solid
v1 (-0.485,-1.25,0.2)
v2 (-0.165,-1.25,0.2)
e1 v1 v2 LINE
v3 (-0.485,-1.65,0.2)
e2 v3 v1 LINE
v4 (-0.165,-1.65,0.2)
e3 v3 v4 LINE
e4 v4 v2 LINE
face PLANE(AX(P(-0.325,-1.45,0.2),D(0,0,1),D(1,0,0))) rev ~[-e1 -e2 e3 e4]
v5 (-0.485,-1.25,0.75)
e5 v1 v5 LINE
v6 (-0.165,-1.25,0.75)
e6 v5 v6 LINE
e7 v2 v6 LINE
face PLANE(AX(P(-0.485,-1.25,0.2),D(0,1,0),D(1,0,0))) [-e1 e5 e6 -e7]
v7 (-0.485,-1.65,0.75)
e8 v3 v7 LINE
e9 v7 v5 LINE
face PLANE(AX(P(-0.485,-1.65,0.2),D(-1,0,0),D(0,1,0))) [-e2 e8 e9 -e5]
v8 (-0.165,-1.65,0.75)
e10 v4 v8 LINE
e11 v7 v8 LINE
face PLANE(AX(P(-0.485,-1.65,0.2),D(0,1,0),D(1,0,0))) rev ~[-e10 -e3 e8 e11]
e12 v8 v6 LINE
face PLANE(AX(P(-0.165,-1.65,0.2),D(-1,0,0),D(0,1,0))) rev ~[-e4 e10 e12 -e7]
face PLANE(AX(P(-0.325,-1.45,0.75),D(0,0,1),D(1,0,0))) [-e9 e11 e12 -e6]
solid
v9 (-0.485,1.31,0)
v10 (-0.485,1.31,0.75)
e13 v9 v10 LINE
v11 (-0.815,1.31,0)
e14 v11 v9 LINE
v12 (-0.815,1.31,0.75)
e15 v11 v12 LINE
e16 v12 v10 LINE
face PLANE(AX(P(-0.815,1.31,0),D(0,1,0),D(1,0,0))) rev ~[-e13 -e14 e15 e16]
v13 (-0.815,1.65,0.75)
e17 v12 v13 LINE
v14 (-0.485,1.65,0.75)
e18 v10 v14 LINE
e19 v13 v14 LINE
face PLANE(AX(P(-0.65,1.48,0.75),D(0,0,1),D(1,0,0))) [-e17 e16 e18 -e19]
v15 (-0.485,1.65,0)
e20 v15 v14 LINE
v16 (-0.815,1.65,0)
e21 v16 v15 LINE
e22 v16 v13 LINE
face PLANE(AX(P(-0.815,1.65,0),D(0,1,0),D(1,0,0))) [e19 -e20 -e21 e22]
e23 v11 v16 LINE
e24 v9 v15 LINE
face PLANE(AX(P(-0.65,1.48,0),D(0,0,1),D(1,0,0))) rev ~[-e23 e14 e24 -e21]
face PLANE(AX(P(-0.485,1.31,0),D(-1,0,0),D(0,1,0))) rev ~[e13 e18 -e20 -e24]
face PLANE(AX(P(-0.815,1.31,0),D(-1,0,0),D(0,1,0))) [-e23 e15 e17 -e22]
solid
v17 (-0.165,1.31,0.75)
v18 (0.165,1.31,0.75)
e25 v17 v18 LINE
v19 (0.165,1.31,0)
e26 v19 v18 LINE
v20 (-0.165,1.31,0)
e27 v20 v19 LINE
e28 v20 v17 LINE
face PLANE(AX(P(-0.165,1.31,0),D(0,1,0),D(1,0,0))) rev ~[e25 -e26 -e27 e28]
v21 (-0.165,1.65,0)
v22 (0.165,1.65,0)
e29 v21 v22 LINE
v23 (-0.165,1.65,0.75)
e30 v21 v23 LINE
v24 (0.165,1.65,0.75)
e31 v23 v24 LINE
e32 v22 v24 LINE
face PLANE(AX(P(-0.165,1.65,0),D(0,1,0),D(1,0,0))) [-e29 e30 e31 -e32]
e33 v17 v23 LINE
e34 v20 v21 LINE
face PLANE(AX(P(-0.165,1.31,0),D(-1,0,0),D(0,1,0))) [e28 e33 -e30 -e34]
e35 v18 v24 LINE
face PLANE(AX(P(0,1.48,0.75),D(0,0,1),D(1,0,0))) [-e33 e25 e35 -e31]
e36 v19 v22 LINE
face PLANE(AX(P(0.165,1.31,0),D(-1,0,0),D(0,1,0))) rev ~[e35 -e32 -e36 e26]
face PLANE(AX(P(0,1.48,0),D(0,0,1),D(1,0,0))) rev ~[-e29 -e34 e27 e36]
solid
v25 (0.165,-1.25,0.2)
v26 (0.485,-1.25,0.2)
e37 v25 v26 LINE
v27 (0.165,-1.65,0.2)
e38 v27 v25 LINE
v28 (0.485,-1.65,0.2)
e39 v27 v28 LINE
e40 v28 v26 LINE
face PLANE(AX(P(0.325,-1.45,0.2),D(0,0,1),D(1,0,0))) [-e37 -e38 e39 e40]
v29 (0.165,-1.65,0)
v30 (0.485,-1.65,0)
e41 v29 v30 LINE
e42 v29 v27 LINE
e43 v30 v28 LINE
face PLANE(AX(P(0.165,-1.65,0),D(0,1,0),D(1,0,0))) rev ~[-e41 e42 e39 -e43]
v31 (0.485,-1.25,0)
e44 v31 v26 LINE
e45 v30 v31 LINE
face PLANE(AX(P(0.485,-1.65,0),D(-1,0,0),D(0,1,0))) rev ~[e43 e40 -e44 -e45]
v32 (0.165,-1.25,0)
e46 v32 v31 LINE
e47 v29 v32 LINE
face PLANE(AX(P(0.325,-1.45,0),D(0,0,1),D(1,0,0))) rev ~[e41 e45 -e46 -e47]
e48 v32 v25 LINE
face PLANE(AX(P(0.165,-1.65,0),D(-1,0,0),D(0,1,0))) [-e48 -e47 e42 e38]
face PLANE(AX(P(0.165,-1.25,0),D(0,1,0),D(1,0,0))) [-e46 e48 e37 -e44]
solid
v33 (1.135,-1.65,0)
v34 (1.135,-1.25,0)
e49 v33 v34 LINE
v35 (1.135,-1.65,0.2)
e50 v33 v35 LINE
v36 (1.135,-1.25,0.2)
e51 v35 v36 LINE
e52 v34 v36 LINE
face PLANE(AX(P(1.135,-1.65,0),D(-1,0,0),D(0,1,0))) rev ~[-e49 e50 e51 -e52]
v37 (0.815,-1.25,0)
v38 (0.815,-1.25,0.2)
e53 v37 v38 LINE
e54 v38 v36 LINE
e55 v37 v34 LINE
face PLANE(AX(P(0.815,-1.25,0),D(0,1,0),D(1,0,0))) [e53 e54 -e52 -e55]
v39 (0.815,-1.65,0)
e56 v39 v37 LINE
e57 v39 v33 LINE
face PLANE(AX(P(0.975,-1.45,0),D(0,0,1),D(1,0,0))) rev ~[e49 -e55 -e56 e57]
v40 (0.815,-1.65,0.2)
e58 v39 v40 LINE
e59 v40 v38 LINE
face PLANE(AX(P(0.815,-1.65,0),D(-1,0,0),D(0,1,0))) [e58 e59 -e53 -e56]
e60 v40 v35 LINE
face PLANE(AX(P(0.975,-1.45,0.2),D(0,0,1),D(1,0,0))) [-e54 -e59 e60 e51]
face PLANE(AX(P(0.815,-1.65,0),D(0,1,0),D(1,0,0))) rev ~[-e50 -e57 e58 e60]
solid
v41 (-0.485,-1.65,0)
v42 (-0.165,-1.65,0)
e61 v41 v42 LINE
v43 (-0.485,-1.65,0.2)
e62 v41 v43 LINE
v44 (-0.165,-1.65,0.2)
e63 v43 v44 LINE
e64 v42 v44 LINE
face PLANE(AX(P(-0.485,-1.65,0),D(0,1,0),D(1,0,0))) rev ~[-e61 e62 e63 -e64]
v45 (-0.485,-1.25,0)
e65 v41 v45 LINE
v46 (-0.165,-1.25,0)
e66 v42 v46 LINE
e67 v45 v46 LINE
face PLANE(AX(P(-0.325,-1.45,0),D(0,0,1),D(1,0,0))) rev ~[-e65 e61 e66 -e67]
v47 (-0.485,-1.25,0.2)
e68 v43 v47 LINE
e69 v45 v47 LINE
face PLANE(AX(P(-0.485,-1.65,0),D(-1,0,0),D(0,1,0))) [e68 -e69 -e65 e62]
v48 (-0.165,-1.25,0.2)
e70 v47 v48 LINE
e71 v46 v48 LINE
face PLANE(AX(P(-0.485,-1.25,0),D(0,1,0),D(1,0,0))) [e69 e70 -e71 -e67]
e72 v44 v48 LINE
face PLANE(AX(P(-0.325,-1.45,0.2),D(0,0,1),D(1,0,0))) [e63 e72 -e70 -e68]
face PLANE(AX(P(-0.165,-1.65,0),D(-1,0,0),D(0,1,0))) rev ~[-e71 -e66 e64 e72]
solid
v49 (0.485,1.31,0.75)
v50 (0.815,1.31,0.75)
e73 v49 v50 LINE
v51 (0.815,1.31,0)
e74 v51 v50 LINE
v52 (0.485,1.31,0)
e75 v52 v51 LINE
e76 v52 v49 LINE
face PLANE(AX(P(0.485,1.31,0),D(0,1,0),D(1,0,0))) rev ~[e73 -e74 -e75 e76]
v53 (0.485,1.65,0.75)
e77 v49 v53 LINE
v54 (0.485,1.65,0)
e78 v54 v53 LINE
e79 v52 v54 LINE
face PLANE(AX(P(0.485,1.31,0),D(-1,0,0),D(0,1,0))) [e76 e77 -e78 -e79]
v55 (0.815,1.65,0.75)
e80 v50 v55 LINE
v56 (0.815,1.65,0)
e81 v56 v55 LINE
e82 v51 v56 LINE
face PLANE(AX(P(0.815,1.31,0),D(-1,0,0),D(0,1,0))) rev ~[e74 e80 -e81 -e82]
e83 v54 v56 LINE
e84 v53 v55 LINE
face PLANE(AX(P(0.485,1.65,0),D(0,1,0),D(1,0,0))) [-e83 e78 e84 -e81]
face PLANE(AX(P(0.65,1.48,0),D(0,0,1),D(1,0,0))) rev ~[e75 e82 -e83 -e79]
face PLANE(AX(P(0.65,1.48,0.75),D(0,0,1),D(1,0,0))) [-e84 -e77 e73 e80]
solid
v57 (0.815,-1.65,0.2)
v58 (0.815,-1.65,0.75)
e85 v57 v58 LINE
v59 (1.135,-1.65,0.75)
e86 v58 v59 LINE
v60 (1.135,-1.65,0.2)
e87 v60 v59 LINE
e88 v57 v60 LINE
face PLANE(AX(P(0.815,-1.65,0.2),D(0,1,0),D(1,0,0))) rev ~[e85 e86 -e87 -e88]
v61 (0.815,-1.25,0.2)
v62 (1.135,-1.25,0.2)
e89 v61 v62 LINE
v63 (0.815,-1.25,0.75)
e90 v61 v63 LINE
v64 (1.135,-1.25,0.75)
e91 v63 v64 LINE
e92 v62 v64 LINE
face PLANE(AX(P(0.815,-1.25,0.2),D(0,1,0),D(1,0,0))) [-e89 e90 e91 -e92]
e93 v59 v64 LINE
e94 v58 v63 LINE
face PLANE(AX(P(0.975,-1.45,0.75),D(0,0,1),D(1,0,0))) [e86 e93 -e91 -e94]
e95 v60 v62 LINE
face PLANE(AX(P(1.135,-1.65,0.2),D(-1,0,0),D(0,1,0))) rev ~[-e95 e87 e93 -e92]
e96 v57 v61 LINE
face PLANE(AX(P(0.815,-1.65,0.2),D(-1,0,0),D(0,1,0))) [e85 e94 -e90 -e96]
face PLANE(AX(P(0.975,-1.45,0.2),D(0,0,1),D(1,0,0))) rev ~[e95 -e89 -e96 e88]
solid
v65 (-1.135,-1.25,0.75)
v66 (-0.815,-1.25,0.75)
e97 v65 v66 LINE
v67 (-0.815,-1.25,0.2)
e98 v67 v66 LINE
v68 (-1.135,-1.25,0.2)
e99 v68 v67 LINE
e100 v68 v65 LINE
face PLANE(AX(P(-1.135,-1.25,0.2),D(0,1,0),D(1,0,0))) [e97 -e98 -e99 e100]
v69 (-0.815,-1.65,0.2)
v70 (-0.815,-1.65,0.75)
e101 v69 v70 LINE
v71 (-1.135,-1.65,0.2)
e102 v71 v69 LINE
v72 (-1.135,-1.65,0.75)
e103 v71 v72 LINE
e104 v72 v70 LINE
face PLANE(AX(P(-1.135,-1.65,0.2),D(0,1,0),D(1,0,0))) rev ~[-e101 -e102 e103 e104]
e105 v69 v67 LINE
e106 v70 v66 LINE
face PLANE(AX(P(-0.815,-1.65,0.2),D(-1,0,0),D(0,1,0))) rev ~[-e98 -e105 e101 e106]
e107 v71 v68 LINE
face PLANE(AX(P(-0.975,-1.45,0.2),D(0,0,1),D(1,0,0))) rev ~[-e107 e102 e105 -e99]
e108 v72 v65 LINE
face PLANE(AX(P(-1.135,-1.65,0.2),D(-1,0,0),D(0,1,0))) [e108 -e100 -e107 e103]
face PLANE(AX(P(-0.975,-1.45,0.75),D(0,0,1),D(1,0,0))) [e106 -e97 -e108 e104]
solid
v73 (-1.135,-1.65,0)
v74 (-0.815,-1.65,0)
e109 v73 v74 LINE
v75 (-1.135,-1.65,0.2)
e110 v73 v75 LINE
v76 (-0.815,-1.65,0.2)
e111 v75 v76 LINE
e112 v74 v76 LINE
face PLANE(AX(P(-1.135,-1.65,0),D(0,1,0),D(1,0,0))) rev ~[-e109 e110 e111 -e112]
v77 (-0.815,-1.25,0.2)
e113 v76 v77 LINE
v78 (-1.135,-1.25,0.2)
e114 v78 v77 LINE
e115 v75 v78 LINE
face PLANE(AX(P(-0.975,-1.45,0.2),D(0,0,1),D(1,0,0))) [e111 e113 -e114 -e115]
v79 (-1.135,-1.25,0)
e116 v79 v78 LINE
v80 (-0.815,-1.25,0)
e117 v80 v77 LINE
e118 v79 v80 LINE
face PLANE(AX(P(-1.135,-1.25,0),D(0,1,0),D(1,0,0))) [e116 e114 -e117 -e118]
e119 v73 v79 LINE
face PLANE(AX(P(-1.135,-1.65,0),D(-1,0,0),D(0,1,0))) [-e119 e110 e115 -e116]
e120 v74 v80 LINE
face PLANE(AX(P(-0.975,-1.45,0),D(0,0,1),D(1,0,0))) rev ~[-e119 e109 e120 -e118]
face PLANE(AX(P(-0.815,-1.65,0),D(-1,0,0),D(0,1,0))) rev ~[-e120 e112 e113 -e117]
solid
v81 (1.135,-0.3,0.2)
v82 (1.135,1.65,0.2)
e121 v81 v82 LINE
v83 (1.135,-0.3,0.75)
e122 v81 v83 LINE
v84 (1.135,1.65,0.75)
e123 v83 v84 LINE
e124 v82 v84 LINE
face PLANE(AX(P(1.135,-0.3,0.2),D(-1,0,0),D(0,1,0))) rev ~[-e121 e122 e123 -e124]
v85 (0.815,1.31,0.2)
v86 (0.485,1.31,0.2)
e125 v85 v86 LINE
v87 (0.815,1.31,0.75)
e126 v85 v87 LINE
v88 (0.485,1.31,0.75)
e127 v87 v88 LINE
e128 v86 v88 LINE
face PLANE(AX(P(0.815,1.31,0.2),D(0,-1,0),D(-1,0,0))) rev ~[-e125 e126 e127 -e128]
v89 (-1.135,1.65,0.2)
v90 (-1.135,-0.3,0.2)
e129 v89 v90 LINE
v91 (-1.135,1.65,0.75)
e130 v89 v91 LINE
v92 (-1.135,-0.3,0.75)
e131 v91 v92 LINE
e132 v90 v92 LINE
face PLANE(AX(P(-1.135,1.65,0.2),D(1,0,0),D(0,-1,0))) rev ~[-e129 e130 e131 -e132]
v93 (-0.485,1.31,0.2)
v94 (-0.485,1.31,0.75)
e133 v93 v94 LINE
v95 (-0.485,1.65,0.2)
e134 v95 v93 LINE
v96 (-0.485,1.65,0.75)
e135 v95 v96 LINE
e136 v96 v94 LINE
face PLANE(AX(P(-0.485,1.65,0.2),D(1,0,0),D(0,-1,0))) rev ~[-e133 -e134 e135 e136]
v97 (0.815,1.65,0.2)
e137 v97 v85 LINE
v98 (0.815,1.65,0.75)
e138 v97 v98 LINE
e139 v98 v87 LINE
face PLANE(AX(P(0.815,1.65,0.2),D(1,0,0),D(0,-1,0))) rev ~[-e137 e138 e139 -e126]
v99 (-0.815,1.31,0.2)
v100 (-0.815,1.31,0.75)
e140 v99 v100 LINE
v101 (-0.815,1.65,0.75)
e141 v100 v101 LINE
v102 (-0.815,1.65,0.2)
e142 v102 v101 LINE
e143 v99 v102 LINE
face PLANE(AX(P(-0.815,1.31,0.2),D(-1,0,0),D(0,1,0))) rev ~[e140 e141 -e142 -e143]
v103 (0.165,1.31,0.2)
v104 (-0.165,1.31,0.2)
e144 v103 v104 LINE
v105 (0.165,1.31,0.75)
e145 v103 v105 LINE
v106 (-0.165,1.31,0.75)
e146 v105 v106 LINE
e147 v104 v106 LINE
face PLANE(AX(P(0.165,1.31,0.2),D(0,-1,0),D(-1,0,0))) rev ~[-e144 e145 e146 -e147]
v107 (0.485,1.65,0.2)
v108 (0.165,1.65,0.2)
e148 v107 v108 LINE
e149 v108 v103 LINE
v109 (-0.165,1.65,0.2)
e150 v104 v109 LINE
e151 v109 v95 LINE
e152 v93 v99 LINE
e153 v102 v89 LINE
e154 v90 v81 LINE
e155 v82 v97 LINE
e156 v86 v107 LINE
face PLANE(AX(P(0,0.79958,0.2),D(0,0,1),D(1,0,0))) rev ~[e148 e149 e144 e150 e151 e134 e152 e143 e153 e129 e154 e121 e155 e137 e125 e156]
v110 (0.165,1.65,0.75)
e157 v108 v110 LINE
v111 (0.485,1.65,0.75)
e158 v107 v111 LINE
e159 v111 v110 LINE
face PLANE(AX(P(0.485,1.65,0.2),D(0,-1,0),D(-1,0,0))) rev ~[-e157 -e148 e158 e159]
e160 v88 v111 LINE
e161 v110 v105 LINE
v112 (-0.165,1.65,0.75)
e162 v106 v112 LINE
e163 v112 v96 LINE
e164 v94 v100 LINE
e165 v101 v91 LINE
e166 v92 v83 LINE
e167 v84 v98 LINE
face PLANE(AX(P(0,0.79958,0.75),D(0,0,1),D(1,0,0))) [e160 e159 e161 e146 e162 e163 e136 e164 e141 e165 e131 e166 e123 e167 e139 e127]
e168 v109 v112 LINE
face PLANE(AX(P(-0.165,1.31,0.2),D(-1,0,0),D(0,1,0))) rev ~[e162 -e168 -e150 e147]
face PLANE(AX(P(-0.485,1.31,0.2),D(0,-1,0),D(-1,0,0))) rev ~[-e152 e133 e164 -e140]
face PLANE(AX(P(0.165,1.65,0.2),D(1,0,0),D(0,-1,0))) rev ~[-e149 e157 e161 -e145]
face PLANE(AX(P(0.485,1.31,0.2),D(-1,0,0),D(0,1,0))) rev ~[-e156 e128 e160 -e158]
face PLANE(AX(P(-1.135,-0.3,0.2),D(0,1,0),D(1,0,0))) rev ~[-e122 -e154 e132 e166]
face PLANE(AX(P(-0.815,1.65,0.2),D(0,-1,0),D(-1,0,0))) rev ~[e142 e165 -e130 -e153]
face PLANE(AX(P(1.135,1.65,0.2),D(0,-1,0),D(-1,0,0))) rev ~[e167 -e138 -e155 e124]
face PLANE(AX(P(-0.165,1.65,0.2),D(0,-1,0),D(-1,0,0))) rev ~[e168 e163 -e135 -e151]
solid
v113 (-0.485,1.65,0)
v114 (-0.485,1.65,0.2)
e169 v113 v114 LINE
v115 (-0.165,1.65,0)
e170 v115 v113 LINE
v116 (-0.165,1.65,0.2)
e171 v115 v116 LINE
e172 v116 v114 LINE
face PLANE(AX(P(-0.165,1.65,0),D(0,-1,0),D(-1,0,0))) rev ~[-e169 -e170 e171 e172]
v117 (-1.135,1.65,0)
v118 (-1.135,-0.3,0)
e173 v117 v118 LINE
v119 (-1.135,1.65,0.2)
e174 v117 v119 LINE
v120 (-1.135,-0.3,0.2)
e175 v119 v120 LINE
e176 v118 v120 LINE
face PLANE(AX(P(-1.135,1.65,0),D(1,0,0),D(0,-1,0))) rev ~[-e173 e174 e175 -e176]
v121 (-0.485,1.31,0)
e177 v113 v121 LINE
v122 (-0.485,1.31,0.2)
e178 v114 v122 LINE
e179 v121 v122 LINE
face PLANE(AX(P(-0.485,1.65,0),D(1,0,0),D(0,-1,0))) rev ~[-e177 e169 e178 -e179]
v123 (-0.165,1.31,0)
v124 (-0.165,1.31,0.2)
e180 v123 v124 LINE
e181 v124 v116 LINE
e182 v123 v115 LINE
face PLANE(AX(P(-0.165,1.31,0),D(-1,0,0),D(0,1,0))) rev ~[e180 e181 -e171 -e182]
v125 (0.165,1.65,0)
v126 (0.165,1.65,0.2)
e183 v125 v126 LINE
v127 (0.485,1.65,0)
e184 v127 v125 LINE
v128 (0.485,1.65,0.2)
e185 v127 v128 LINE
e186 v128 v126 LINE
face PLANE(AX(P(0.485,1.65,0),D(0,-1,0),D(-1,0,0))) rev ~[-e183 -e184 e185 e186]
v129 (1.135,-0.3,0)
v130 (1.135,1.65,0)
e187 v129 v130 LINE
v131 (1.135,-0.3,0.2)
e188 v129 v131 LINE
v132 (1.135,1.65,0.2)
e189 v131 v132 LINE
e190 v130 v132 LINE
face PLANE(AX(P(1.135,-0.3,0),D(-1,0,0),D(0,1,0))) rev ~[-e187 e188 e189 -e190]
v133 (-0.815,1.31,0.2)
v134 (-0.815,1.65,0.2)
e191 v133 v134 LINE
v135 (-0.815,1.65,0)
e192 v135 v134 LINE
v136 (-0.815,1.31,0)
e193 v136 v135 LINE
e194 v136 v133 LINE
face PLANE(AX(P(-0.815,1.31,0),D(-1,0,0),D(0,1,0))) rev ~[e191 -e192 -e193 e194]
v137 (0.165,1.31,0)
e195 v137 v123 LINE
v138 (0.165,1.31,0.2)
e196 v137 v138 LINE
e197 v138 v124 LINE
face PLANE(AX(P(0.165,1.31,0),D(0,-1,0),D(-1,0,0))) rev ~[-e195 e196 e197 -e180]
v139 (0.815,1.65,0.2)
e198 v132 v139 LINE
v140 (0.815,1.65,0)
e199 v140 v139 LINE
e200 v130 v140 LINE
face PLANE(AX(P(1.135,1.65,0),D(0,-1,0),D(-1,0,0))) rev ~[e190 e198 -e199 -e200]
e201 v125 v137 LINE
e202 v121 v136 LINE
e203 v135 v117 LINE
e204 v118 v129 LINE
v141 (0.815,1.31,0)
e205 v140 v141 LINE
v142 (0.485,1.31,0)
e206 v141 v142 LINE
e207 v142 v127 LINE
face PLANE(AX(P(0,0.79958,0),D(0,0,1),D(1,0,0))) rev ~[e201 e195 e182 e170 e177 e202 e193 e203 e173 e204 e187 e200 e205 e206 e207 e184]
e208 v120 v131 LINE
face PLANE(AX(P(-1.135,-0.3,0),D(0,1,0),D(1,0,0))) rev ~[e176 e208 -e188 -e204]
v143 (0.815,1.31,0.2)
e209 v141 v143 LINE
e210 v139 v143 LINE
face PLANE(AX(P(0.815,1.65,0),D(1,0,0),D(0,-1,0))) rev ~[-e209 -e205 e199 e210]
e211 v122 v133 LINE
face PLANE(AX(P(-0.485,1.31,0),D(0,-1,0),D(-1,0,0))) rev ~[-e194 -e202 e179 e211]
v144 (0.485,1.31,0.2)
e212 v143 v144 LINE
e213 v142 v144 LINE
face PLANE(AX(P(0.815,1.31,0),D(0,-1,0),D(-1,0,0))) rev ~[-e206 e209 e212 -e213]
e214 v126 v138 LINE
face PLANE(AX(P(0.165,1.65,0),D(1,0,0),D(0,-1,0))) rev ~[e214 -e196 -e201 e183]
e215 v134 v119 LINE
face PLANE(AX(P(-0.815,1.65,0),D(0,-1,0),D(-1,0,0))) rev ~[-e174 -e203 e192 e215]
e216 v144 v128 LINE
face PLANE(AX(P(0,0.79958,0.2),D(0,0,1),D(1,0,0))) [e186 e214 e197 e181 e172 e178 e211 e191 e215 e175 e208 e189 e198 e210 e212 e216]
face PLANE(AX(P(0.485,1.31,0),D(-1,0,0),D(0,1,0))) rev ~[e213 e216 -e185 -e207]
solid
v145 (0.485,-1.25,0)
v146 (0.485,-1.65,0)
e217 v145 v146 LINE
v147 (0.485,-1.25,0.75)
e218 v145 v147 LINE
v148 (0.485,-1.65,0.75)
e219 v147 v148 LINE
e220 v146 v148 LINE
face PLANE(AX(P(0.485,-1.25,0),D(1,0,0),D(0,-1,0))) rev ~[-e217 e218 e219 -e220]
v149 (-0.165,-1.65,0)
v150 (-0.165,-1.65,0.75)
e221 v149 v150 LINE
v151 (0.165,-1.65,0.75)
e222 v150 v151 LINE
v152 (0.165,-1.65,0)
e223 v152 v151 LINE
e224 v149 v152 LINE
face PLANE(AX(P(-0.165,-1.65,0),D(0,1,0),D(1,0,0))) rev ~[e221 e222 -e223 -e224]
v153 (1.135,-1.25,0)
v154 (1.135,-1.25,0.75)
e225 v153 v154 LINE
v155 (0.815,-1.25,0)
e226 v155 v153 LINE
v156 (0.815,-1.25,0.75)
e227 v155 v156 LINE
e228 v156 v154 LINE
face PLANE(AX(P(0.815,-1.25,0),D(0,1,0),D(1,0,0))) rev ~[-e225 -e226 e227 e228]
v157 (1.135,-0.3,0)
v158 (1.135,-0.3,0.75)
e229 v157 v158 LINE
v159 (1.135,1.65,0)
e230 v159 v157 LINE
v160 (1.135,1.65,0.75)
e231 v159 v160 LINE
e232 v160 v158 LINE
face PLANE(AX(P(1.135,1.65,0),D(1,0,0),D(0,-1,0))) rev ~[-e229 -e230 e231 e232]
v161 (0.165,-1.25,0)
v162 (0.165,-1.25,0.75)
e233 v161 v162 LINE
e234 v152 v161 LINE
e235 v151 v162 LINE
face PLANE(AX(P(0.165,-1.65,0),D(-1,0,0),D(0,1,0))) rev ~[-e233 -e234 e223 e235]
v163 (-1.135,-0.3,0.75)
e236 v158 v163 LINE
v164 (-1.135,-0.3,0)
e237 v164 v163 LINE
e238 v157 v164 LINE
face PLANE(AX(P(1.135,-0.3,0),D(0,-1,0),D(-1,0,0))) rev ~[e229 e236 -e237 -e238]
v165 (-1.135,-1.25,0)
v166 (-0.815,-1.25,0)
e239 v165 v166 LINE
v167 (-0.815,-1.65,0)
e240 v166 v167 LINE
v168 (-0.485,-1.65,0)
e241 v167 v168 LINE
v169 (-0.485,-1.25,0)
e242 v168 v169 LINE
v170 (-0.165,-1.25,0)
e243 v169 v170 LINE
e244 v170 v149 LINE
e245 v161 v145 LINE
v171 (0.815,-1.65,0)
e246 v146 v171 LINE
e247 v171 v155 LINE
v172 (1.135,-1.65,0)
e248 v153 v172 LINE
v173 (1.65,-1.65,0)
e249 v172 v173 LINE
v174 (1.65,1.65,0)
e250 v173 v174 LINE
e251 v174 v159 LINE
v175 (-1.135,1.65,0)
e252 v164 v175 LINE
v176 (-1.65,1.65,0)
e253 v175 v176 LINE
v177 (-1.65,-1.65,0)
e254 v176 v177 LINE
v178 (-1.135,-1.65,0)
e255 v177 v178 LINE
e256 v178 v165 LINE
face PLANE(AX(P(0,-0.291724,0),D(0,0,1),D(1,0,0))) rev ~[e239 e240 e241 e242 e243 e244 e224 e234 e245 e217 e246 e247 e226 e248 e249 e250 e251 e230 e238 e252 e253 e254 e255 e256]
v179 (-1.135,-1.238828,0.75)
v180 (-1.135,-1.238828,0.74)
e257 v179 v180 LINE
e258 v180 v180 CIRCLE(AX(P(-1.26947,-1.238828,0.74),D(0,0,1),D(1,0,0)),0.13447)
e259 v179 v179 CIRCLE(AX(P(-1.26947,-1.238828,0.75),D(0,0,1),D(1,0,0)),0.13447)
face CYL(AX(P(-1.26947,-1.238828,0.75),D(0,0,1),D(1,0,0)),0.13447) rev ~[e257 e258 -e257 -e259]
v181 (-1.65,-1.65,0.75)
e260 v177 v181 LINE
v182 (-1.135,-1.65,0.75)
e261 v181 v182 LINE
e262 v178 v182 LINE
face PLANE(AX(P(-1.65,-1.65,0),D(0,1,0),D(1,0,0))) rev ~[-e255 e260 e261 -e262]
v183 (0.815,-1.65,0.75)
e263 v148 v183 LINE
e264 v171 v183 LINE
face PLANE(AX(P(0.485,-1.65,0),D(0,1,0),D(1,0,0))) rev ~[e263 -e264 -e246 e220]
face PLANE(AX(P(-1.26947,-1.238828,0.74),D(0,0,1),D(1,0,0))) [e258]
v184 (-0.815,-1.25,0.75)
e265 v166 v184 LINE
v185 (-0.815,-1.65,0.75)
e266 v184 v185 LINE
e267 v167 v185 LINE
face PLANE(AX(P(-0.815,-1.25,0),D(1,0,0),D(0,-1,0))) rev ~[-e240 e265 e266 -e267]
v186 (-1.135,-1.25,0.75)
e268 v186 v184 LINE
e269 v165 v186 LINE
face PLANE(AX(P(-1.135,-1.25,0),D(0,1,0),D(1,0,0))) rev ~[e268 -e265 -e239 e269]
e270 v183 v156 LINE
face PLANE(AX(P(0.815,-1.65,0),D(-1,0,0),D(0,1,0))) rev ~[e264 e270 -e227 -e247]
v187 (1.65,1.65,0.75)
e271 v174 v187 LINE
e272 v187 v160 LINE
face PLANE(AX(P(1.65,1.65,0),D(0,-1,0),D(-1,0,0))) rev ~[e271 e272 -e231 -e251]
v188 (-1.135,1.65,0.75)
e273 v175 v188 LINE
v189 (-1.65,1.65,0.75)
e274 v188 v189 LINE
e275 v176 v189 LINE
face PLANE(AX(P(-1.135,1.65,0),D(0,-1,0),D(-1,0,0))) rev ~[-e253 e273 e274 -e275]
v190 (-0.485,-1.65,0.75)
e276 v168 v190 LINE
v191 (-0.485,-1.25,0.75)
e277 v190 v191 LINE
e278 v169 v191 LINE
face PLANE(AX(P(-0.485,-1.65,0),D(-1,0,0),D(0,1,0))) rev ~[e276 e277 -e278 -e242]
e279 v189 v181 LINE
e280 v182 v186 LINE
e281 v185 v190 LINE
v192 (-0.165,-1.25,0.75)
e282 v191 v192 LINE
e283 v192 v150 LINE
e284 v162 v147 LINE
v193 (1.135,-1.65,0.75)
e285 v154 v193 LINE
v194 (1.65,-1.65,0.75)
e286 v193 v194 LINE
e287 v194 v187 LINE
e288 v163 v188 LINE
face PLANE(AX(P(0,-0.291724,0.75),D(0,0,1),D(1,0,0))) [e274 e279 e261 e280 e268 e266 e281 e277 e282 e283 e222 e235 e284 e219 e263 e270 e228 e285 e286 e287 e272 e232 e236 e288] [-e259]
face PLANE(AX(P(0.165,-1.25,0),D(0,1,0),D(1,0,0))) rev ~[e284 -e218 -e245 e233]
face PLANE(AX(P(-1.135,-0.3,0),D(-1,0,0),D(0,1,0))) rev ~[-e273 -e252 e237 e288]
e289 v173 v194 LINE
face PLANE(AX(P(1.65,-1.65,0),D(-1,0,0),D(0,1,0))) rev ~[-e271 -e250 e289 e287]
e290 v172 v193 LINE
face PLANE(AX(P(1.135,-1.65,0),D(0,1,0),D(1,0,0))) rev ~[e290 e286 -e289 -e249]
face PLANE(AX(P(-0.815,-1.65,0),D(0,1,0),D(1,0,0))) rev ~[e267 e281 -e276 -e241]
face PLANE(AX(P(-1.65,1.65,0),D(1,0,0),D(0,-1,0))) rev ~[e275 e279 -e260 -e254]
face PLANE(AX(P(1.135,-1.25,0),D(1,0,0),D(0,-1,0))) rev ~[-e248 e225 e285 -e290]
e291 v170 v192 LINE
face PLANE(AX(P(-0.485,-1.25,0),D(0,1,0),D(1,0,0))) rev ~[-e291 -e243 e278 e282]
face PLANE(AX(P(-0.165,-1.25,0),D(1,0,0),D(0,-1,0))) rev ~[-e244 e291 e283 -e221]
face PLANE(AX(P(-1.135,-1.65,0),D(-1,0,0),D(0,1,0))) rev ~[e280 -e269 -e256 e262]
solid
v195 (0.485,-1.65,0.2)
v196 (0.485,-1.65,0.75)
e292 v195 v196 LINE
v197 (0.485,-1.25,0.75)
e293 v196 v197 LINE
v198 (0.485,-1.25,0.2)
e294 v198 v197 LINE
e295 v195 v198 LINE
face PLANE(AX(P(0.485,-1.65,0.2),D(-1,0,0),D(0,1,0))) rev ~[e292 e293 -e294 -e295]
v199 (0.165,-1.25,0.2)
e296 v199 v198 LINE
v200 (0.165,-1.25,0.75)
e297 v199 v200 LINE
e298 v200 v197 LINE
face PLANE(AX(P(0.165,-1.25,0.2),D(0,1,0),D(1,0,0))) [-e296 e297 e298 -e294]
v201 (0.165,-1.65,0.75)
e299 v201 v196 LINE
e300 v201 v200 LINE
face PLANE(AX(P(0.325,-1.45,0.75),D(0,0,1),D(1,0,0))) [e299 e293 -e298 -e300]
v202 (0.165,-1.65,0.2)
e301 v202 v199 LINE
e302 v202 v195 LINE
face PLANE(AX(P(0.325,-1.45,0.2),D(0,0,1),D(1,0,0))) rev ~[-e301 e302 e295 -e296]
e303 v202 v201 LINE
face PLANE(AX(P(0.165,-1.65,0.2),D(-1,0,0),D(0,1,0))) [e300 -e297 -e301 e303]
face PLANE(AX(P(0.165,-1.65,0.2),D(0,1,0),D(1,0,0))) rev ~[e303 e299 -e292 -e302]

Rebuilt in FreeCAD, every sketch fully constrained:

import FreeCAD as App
import Part
import Sketcher
from FreeCAD import Vector


def add_polygon(sketch, points):
    """Adds a closed chain of lines whose ends are joined by coincident constraints."""
    first, n = sketch.GeometryCount, len(points)
    for a, b in zip(points, points[1:] + points[:1]):
        sketch.addGeometry(Part.LineSegment(App.Vector(*a, 0), App.Vector(*b, 0)), False)
    for i in range(n):
        sketch.addConstraint(Sketcher.Constraint("Coincident", first + i, 2, first + (i + 1) % n, 1))

doc = App.newDocument("Part")
params = doc.addObject("Spreadsheet::Sheet", "Params")
for row, (alias, value) in enumerate([
    ("sketch1_width", "0.32 mm"),
    ("sketch1_width2", "2.27 mm"),
    ("sketch1_height", "1.95 mm"),
    ("sketch1_height2", "0.34 mm"),
    ("pad1_length", "0.2 mm"),
    ("sketch2_height", "0.4 mm"),
    ("sketch2_width", "0.32 mm"),
    ("pad2_length", "0.2 mm"),
    ("sketch3_height", "0.4 mm"),
    ("sketch3_width", "0.32 mm"),
    ("pad3_length", "0.2 mm"),
    ("sketch4_height", "0.4 mm"),
    ("sketch4_width", "0.32 mm"),
    ("pad4_length", "0.2 mm"),
    ("sketch5_height", "0.4 mm"),
    ("sketch5_width", "0.32 mm"),
    ("pad5_length", "0.2 mm"),
    ("sketch6_height", "3.3 mm"),
    ("sketch6_height2", "0.4 mm"),
    ("sketch6_width", "0.32 mm"),
    ("sketch6_width2", "0.33 mm"),
    ("sketch6_height3", "1.95 mm"),
    ("pad6_length", "0.75 mm"),
    ("pocket1_length", "0.01 mm"),
    ("sketch8_width", "0.33 mm"),
    ("sketch8_height", "0.34 mm"),
    ("pad7_length", "0.75 mm"),
    ("sketch9_width", "0.33 mm"),
    ("sketch9_height", "0.34 mm"),
    ("pad8_length", "0.75 mm"),
    ("sketch10_width", "0.33 mm"),
    ("sketch10_height", "0.34 mm"),
    ("pad9_length", "0.75 mm"),
    ("sketch11_width", "0.32 mm"),
    ("sketch11_width2", "2.27 mm"),
    ("sketch11_height", "1.95 mm"),
    ("sketch11_height2", "0.34 mm"),
    ("pad10_length", "0.55 mm"),
    ("sketch12_height", "0.4 mm"),
    ("sketch12_width", "0.32 mm"),
    ("pad11_length", "0.55 mm"),
    ("sketch13_height", "0.4 mm"),
    ("sketch13_width", "0.32 mm"),
    ("pad12_length", "0.55 mm"),
    ("sketch14_height", "0.4 mm"),
    ("sketch14_width", "0.32 mm"),
    ("pad13_length", "0.55 mm"),
    ("sketch15_height", "0.4 mm"),
    ("sketch15_width", "0.32 mm"),
    ("pad14_length", "0.55 mm"),
], start=1):
    params.set(f"A{row}", alias)
    params.set(f"B{row}", "=" + value)
    params.setAlias(f"B{row}", alias)

body = doc.addObject("PartDesign::Body", "Body")

# Sketch on XY plane
sketch1 = body.newObject("Sketcher::SketchObject", "Sketch")
sketch1.AttachmentSupport = (doc.getObject("XY_Plane"), [""])
sketch1.MapMode = "FlatFace"
add_polygon(sketch1, [(-0.81, 1.65), (-1.14, 1.65), (-1.14, -0.3), (1.14, -0.3), (1.14, 1.65), (0.81, 1.65), (0.81, 1.31), (0.48, 1.31), (0.48, 1.65), (0.17, 1.65), (0.17, 1.31), (-0.17, 1.31), (-0.17, 1.65), (-0.48, 1.65), (-0.48, 1.31), (-0.81, 1.31)])  # lines 0-15
sketch1.addConstraint([
    Sketcher.Constraint("Horizontal", 0),
    Sketcher.Constraint("Vertical", 1),
    Sketcher.Constraint("Horizontal", 2),
    Sketcher.Constraint("Vertical", 3),
    Sketcher.Constraint("Horizontal", 4),
    Sketcher.Constraint("Vertical", 5),
    Sketcher.Constraint("Horizontal", 6),
    Sketcher.Constraint("Vertical", 7),
    Sketcher.Constraint("Horizontal", 8),
    Sketcher.Constraint("Vertical", 9),
    Sketcher.Constraint("Horizontal", 10),
    Sketcher.Constraint("Vertical", 11),
    Sketcher.Constraint("Horizontal", 12),
    Sketcher.Constraint("Vertical", 13),
    Sketcher.Constraint("Horizontal", 14),
    Sketcher.Constraint("Vertical", 15),
    Sketcher.Constraint("Symmetric", 0, 2, 3, 2, -2),
    Sketcher.Constraint("Symmetric", 8, 2, 11, 2, -2),
    Sketcher.Constraint("Symmetric", 6, 2, 13, 2, -2),
    Sketcher.Constraint("Horizontal", 4, 2, 7, 2),
    Sketcher.Constraint("Horizontal", 6, 2, 9, 2),
    Sketcher.Constraint("Equal", 0, 4),
    Sketcher.Constraint("Equal", 4, 8),
    Sketcher.Constraint("Equal", 6, 10),
    Sketcher.Constraint("DistanceX", 0, 2, 0, 1, 0.32),
    Sketcher.Constraint("DistanceX", 2, 1, 2, 2, 2.27),
    Sketcher.Constraint("DistanceY", 1, 2, 1, 1, 1.95),
    Sketcher.Constraint("DistanceY", 5, 2, 5, 1, 0.34),
    Sketcher.Constraint("DistanceY", 1, 2, -1, 1, 0.3),
])
sketch1.setExpression("Constraints[40]", "Params.sketch1_width")
sketch1.setExpression("Constraints[41]", "Params.sketch1_width2")
sketch1.setExpression("Constraints[42]", "Params.sketch1_height")
sketch1.setExpression("Constraints[43]", "Params.sketch1_height2")
pad1 = body.newObject("PartDesign::Pad", "Pad")
pad1.Profile = sketch1
pad1.setExpression("Length", "Params.pad1_length")
body2 = doc.addObject("PartDesign::Body", "Body001")

# Sketch on XY plane
sketch2 = body2.newObject("Sketcher::SketchObject", "Sketch001")
sketch2.AttachmentSupport = (doc.getObject("XY_Plane001"), [""])
sketch2.MapMode = "FlatFace"
add_polygon(sketch2, [(-1.14, -1.25), (-1.14, -1.65), (-0.81, -1.65), (-0.81, -1.25)])  # lines 0-3
sketch2.addConstraint([
    Sketcher.Constraint("Vertical", 0),
    Sketcher.Constraint("Horizontal", 1),
    Sketcher.Constraint("Vertical", 2),
    Sketcher.Constraint("Horizontal", 3),
    Sketcher.Constraint("DistanceY", 0, 2, 0, 1, 0.4),
    Sketcher.Constraint("DistanceX", 1, 1, 1, 2, 0.32),
    Sketcher.Constraint("DistanceY", 0, 2, -1, 1, 1.65),
    Sketcher.Constraint("DistanceX", 0, 2, -1, 1, 1.135),
])
sketch2.setExpression("Constraints[8]", "Params.sketch2_height")
sketch2.setExpression("Constraints[9]", "Params.sketch2_width")
pad2 = body2.newObject("PartDesign::Pad", "Pad001")
pad2.Profile = sketch2
pad2.setExpression("Length", "Params.pad2_length")
body3 = doc.addObject("PartDesign::Body", "Body002")

# Sketch on XY plane
sketch3 = body3.newObject("Sketcher::SketchObject", "Sketch002")
sketch3.AttachmentSupport = (doc.getObject("XY_Plane002"), [""])
sketch3.MapMode = "FlatFace"
add_polygon(sketch3, [(-0.48, -1.25), (-0.48, -1.65), (-0.17, -1.65), (-0.17, -1.25)])  # lines 0-3
sketch3.addConstraint([
    Sketcher.Constraint("Vertical", 0),
    Sketcher.Constraint("Horizontal", 1),
    Sketcher.Constraint("Vertical", 2),
    Sketcher.Constraint("Horizontal", 3),
    Sketcher.Constraint("DistanceY", 0, 2, 0, 1, 0.4),
    Sketcher.Constraint("DistanceX", 1, 1, 1, 2, 0.32),
    Sketcher.Constraint("DistanceY", 0, 2, -1, 1, 1.65),
    Sketcher.Constraint("DistanceX", 0, 2, -1, 1, 0.485),
])
sketch3.setExpression("Constraints[8]", "Params.sketch3_height")
sketch3.setExpression("Constraints[9]", "Params.sketch3_width")
pad3 = body3.newObject("PartDesign::Pad", "Pad002")
pad3.Profile = sketch3
pad3.setExpression("Length", "Params.pad3_length")
body4 = doc.addObject("PartDesign::Body", "Body003")

# Sketch on XY plane
sketch4 = body4.newObject("Sketcher::SketchObject", "Sketch003")
sketch4.AttachmentSupport = (doc.getObject("XY_Plane003"), [""])
sketch4.MapMode = "FlatFace"
add_polygon(sketch4, [(0.17, -1.25), (0.17, -1.65), (0.48, -1.65), (0.48, -1.25)])  # lines 0-3
sketch4.addConstraint([
    Sketcher.Constraint("Vertical", 0),
    Sketcher.Constraint("Horizontal", 1),
    Sketcher.Constraint("Vertical", 2),
    Sketcher.Constraint("Horizontal", 3),
    Sketcher.Constraint("DistanceY", 0, 2, 0, 1, 0.4),
    Sketcher.Constraint("DistanceX", 1, 1, 1, 2, 0.32),
    Sketcher.Constraint("DistanceY", 0, 2, -1, 1, 1.65),
    Sketcher.Constraint("DistanceX", -1, 1, 0, 2, 0.165),
])
sketch4.setExpression("Constraints[8]", "Params.sketch4_height")
sketch4.setExpression("Constraints[9]", "Params.sketch4_width")
pad4 = body4.newObject("PartDesign::Pad", "Pad003")
pad4.Profile = sketch4
pad4.setExpression("Length", "Params.pad4_length")
body5 = doc.addObject("PartDesign::Body", "Body004")

# Sketch on XY plane
sketch5 = body5.newObject("Sketcher::SketchObject", "Sketch004")
sketch5.AttachmentSupport = (doc.getObject("XY_Plane004"), [""])
sketch5.MapMode = "FlatFace"
add_polygon(sketch5, [(0.81, -1.25), (0.81, -1.65), (1.14, -1.65), (1.14, -1.25)])  # lines 0-3
sketch5.addConstraint([
    Sketcher.Constraint("Vertical", 0),
    Sketcher.Constraint("Horizontal", 1),
    Sketcher.Constraint("Vertical", 2),
    Sketcher.Constraint("Horizontal", 3),
    Sketcher.Constraint("DistanceY", 0, 2, 0, 1, 0.4),
    Sketcher.Constraint("DistanceX", 1, 1, 1, 2, 0.32),
    Sketcher.Constraint("DistanceY", 0, 2, -1, 1, 1.65),
    Sketcher.Constraint("DistanceX", -1, 1, 0, 2, 0.815),
])
sketch5.setExpression("Constraints[8]", "Params.sketch5_height")
sketch5.setExpression("Constraints[9]", "Params.sketch5_width")
pad5 = body5.newObject("PartDesign::Pad", "Pad004")
pad5.Profile = sketch5
pad5.setExpression("Length", "Params.pad5_length")
body6 = doc.addObject("PartDesign::Body", "Body005")

# Sketch on XY plane
sketch6 = body6.newObject("Sketcher::SketchObject", "Sketch005")
sketch6.AttachmentSupport = (doc.getObject("XY_Plane005"), [""])
sketch6.MapMode = "FlatFace"
add_polygon(sketch6, [(-1.65, 1.65), (-1.65, -1.65), (-1.14, -1.65), (-1.14, -1.25), (-0.81, -1.25), (-0.81, -1.65), (-0.48, -1.65), (-0.48, -1.25), (-0.17, -1.25), (-0.17, -1.65), (0.17, -1.65), (0.17, -1.25), (0.48, -1.25), (0.48, -1.65), (0.81, -1.65), (0.81, -1.25), (1.14, -1.25), (1.14, -1.65), (1.65, -1.65), (1.65, 1.65), (1.14, 1.65), (1.14, -0.3), (-1.14, -0.3), (-1.14, 1.65)])  # lines 0-23
sketch6.addConstraint([
    Sketcher.Constraint("Vertical", 0),
    Sketcher.Constraint("Horizontal", 1),
    Sketcher.Constraint("Vertical", 2),
    Sketcher.Constraint("Horizontal", 3),
    Sketcher.Constraint("Vertical", 4),
    Sketcher.Constraint("Horizontal", 5),
    Sketcher.Constraint("Vertical", 6),
    Sketcher.Constraint("Horizontal", 7),
    Sketcher.Constraint("Vertical", 8),
    Sketcher.Constraint("Horizontal", 9),
    Sketcher.Constraint("Vertical", 10),
    Sketcher.Constraint("Horizontal", 11),
    Sketcher.Constraint("Vertical", 12),
    Sketcher.Constraint("Horizontal", 13),
    Sketcher.Constraint("Vertical", 14),
    Sketcher.Constraint("Horizontal", 15),
    Sketcher.Constraint("Vertical", 16),
    Sketcher.Constraint("Horizontal", 17),
    Sketcher.Constraint("Vertical", 18),
    Sketcher.Constraint("Horizontal", 19),
    Sketcher.Constraint("Vertical", 20),
    Sketcher.Constraint("Horizontal", 21),
    Sketcher.Constraint("Vertical", 22),
    Sketcher.Constraint("Horizontal", 23),
    Sketcher.Constraint("Symmetric", 0, 2, 18, 2, -1, 1),
    Sketcher.Constraint("Symmetric", 16, 2, 22, 2, -1, 1),
    Sketcher.Constraint("Symmetric", 7, 2, 10, 2, -2),
    Sketcher.Constraint("Symmetric", 5, 2, 12, 2, -2),
    Sketcher.Constraint("Symmetric", 3, 2, 14, 2, -2),
    Sketcher.Constraint("Symmetric", 1, 2, 16, 2, -2),
    Sketcher.Constraint("Horizontal", 1, 2, 4, 2),
    Sketcher.Constraint("Horizontal", 3, 2, 6, 2),
    Sketcher.Constraint("Horizontal", 5, 2, 8, 2),
    Sketcher.Constraint("Vertical", 16, 2, 19, 2),
    Sketcher.Constraint("Equal", 3, 7),
    Sketcher.Constraint("Equal", 5, 9),
    Sketcher.Constraint("DistanceY", 0, 2, 0, 1, 3.3),
    Sketcher.Constraint("DistanceY", 2, 1, 2, 2, 0.4),
    Sketcher.Constraint("DistanceX", 3, 1, 3, 2, 0.32),
    Sketcher.Constraint("DistanceX", 5, 1, 5, 2, 0.33),
    Sketcher.Constraint("DistanceY", 20, 2, 20, 1, 1.95),
    Sketcher.Constraint("DistanceX", 1, 1, 1, 2, 0.515),
])
sketch6.setExpression("Constraints[60]", "Params.sketch6_height")
sketch6.setExpression("Constraints[61]", "Params.sketch6_height2")
sketch6.setExpression("Constraints[62]", "Params.sketch6_width")
sketch6.setExpression("Constraints[63]", "Params.sketch6_width2")
sketch6.setExpression("Constraints[64]", "Params.sketch6_height3")
pad6 = body6.newObject("PartDesign::Pad", "Pad005")
pad6.Profile = sketch6
pad6.setExpression("Length", "Params.pad6_length")

# Sketch on XY plane
sketch7 = body6.newObject("Sketcher::SketchObject", "Sketch006")
sketch7.AttachmentSupport = (doc.getObject("XY_Plane005"), [""])
sketch7.MapMode = "FlatFace"
sketch7.AttachmentOffset = App.Placement(Vector(0, 0, 0.75), App.Rotation())
sketch7.addGeometry(Part.Circle(Vector(-1.27, -1.24, 0), Vector(0, 0, 1), 0.13), False)
sketch7.addConstraint([
    Sketcher.Constraint("Diameter", 0, 0.26894),
    Sketcher.Constraint("DistanceX", 0, 3, -1, 1, 1.26947),
    Sketcher.Constraint("DistanceY", 0, 3, -1, 1, 1.238828),
])
pocket1 = body6.newObject("PartDesign::Pocket", "Pocket")
pocket1.Profile = sketch7
pocket1.setExpression("Length", "Params.pocket1_length")
body7 = doc.addObject("PartDesign::Body", "Body006")

# Sketch on XY plane
sketch8 = body7.newObject("Sketcher::SketchObject", "Sketch007")
sketch8.AttachmentSupport = (doc.getObject("XY_Plane006"), [""])
sketch8.MapMode = "FlatFace"
add_polygon(sketch8, [(0.48, 1.65), (0.48, 1.31), (0.81, 1.31), (0.81, 1.65)])  # lines 0-3
sketch8.addConstraint([
    Sketcher.Constraint("Vertical", 0),
    Sketcher.Constraint("Horizontal", 1),
    Sketcher.Constraint("Vertical", 2),
    Sketcher.Constraint("Horizontal", 3),
    Sketcher.Constraint("DistanceX", 1, 1, 1, 2, 0.33),
    Sketcher.Constraint("DistanceY", 0, 2, 0, 1, 0.34),
    Sketcher.Constraint("DistanceY", -1, 1, 0, 2, 1.31),
    Sketcher.Constraint("DistanceX", -1, 1, 0, 2, 0.485),
])
sketch8.setExpression("Constraints[8]", "Params.sketch8_width")
sketch8.setExpression("Constraints[9]", "Params.sketch8_height")
pad7 = body7.newObject("PartDesign::Pad", "Pad006")
pad7.Profile = sketch8
pad7.setExpression("Length", "Params.pad7_length")
body8 = doc.addObject("PartDesign::Body", "Body007")

# Sketch on XY plane
sketch9 = body8.newObject("Sketcher::SketchObject", "Sketch008")
sketch9.AttachmentSupport = (doc.getObject("XY_Plane007"), [""])
sketch9.MapMode = "FlatFace"
add_polygon(sketch9, [(-0.81, 1.65), (-0.81, 1.31), (-0.48, 1.31), (-0.48, 1.65)])  # lines 0-3
sketch9.addConstraint([
    Sketcher.Constraint("Vertical", 0),
    Sketcher.Constraint("Horizontal", 1),
    Sketcher.Constraint("Vertical", 2),
    Sketcher.Constraint("Horizontal", 3),
    Sketcher.Constraint("DistanceX", 1, 1, 1, 2, 0.33),
    Sketcher.Constraint("DistanceY", 0, 2, 0, 1, 0.34),
    Sketcher.Constraint("DistanceY", -1, 1, 0, 2, 1.31),
    Sketcher.Constraint("DistanceX", 0, 2, -1, 1, 0.815),
])
sketch9.setExpression("Constraints[8]", "Params.sketch9_width")
sketch9.setExpression("Constraints[9]", "Params.sketch9_height")
pad8 = body8.newObject("PartDesign::Pad", "Pad007")
pad8.Profile = sketch9
pad8.setExpression("Length", "Params.pad8_length")
body9 = doc.addObject("PartDesign::Body", "Body008")

# Sketch on XY plane
sketch10 = body9.newObject("Sketcher::SketchObject", "Sketch009")
sketch10.AttachmentSupport = (doc.getObject("XY_Plane008"), [""])
sketch10.MapMode = "FlatFace"
add_polygon(sketch10, [(-0.17, 1.65), (-0.17, 1.31), (0.17, 1.31), (0.17, 1.65)])  # lines 0-3
sketch10.addConstraint([
    Sketcher.Constraint("Vertical", 0),
    Sketcher.Constraint("Horizontal", 1),
    Sketcher.Constraint("Vertical", 2),
    Sketcher.Constraint("Horizontal", 3),
    Sketcher.Constraint("DistanceX", 1, 1, 1, 2, 0.33),
    Sketcher.Constraint("DistanceY", 0, 2, 0, 1, 0.34),
    Sketcher.Constraint("DistanceY", -1, 1, 0, 2, 1.31),
    Sketcher.Constraint("DistanceX", 0, 2, -1, 1, 0.165),
])
sketch10.setExpression("Constraints[8]", "Params.sketch10_width")
sketch10.setExpression("Constraints[9]", "Params.sketch10_height")
pad9 = body9.newObject("PartDesign::Pad", "Pad008")
pad9.Profile = sketch10
pad9.setExpression("Length", "Params.pad9_length")
body10 = doc.addObject("PartDesign::Body", "Body009")

# Sketch on XY plane
sketch11 = body10.newObject("Sketcher::SketchObject", "Sketch010")
sketch11.AttachmentSupport = (doc.getObject("XY_Plane009"), [""])
sketch11.MapMode = "FlatFace"
sketch11.AttachmentOffset = App.Placement(Vector(0, 0, 0.2), App.Rotation())
add_polygon(sketch11, [(-0.81, 1.65), (-1.14, 1.65), (-1.14, -0.3), (1.14, -0.3), (1.14, 1.65), (0.81, 1.65), (0.81, 1.31), (0.48, 1.31), (0.48, 1.65), (0.17, 1.65), (0.17, 1.31), (-0.17, 1.31), (-0.17, 1.65), (-0.48, 1.65), (-0.48, 1.31), (-0.81, 1.31)])  # lines 0-15
sketch11.addConstraint([
    Sketcher.Constraint("Horizontal", 0),
    Sketcher.Constraint("Vertical", 1),
    Sketcher.Constraint("Horizontal", 2),
    Sketcher.Constraint("Vertical", 3),
    Sketcher.Constraint("Horizontal", 4),
    Sketcher.Constraint("Vertical", 5),
    Sketcher.Constraint("Horizontal", 6),
    Sketcher.Constraint("Vertical", 7),
    Sketcher.Constraint("Horizontal", 8),
    Sketcher.Constraint("Vertical", 9),
    Sketcher.Constraint("Horizontal", 10),
    Sketcher.Constraint("Vertical", 11),
    Sketcher.Constraint("Horizontal", 12),
    Sketcher.Constraint("Vertical", 13),
    Sketcher.Constraint("Horizontal", 14),
    Sketcher.Constraint("Vertical", 15),
    Sketcher.Constraint("Symmetric", 0, 2, 3, 2, -2),
    Sketcher.Constraint("Symmetric", 8, 2, 11, 2, -2),
    Sketcher.Constraint("Symmetric", 6, 2, 13, 2, -2),
    Sketcher.Constraint("Horizontal", 4, 2, 7, 2),
    Sketcher.Constraint("Horizontal", 6, 2, 9, 2),
    Sketcher.Constraint("Equal", 0, 4),
    Sketcher.Constraint("Equal", 4, 8),
    Sketcher.Constraint("Equal", 6, 10),
    Sketcher.Constraint("DistanceX", 0, 2, 0, 1, 0.32),
    Sketcher.Constraint("DistanceX", 2, 1, 2, 2, 2.27),
    Sketcher.Constraint("DistanceY", 1, 2, 1, 1, 1.95),
    Sketcher.Constraint("DistanceY", 5, 2, 5, 1, 0.34),
    Sketcher.Constraint("DistanceY", 1, 2, -1, 1, 0.3),
])
sketch11.setExpression("Constraints[40]", "Params.sketch11_width")
sketch11.setExpression("Constraints[41]", "Params.sketch11_width2")
sketch11.setExpression("Constraints[42]", "Params.sketch11_height")
sketch11.setExpression("Constraints[43]", "Params.sketch11_height2")
pad10 = body10.newObject("PartDesign::Pad", "Pad009")
pad10.Profile = sketch11
pad10.setExpression("Length", "Params.pad10_length")
body11 = doc.addObject("PartDesign::Body", "Body010")

# Sketch on XY plane
sketch12 = body11.newObject("Sketcher::SketchObject", "Sketch011")
sketch12.AttachmentSupport = (doc.getObject("XY_Plane010"), [""])
sketch12.MapMode = "FlatFace"
sketch12.AttachmentOffset = App.Placement(Vector(0, 0, 0.2), App.Rotation())
add_polygon(sketch12, [(-1.14, -1.25), (-1.14, -1.65), (-0.81, -1.65), (-0.81, -1.25)])  # lines 0-3
sketch12.addConstraint([
    Sketcher.Constraint("Vertical", 0),
    Sketcher.Constraint("Horizontal", 1),
    Sketcher.Constraint("Vertical", 2),
    Sketcher.Constraint("Horizontal", 3),
    Sketcher.Constraint("DistanceY", 0, 2, 0, 1, 0.4),
    Sketcher.Constraint("DistanceX", 1, 1, 1, 2, 0.32),
    Sketcher.Constraint("DistanceY", 0, 2, -1, 1, 1.65),
    Sketcher.Constraint("DistanceX", 0, 2, -1, 1, 1.135),
])
sketch12.setExpression("Constraints[8]", "Params.sketch12_height")
sketch12.setExpression("Constraints[9]", "Params.sketch12_width")
pad11 = body11.newObject("PartDesign::Pad", "Pad010")
pad11.Profile = sketch12
pad11.setExpression("Length", "Params.pad11_length")
body12 = doc.addObject("PartDesign::Body", "Body011")

# Sketch on XY plane
sketch13 = body12.newObject("Sketcher::SketchObject", "Sketch012")
sketch13.AttachmentSupport = (doc.getObject("XY_Plane011"), [""])
sketch13.MapMode = "FlatFace"
sketch13.AttachmentOffset = App.Placement(Vector(0, 0, 0.2), App.Rotation())
add_polygon(sketch13, [(-0.48, -1.25), (-0.48, -1.65), (-0.17, -1.65), (-0.17, -1.25)])  # lines 0-3
sketch13.addConstraint([
    Sketcher.Constraint("Vertical", 0),
    Sketcher.Constraint("Horizontal", 1),
    Sketcher.Constraint("Vertical", 2),
    Sketcher.Constraint("Horizontal", 3),
    Sketcher.Constraint("DistanceY", 0, 2, 0, 1, 0.4),
    Sketcher.Constraint("DistanceX", 1, 1, 1, 2, 0.32),
    Sketcher.Constraint("DistanceY", 0, 2, -1, 1, 1.65),
    Sketcher.Constraint("DistanceX", 0, 2, -1, 1, 0.485),
])
sketch13.setExpression("Constraints[8]", "Params.sketch13_height")
sketch13.setExpression("Constraints[9]", "Params.sketch13_width")
pad12 = body12.newObject("PartDesign::Pad", "Pad011")
pad12.Profile = sketch13
pad12.setExpression("Length", "Params.pad12_length")
body13 = doc.addObject("PartDesign::Body", "Body012")

# Sketch on XY plane
sketch14 = body13.newObject("Sketcher::SketchObject", "Sketch013")
sketch14.AttachmentSupport = (doc.getObject("XY_Plane012"), [""])
sketch14.MapMode = "FlatFace"
sketch14.AttachmentOffset = App.Placement(Vector(0, 0, 0.2), App.Rotation())
add_polygon(sketch14, [(0.17, -1.25), (0.17, -1.65), (0.48, -1.65), (0.48, -1.25)])  # lines 0-3
sketch14.addConstraint([
    Sketcher.Constraint("Vertical", 0),
    Sketcher.Constraint("Horizontal", 1),
    Sketcher.Constraint("Vertical", 2),
    Sketcher.Constraint("Horizontal", 3),
    Sketcher.Constraint("DistanceY", 0, 2, 0, 1, 0.4),
    Sketcher.Constraint("DistanceX", 1, 1, 1, 2, 0.32),
    Sketcher.Constraint("DistanceY", 0, 2, -1, 1, 1.65),
    Sketcher.Constraint("DistanceX", -1, 1, 0, 2, 0.165),
])
sketch14.setExpression("Constraints[8]", "Params.sketch14_height")
sketch14.setExpression("Constraints[9]", "Params.sketch14_width")
pad13 = body13.newObject("PartDesign::Pad", "Pad012")
pad13.Profile = sketch14
pad13.setExpression("Length", "Params.pad13_length")
body14 = doc.addObject("PartDesign::Body", "Body013")

# Sketch on XY plane
sketch15 = body14.newObject("Sketcher::SketchObject", "Sketch014")
sketch15.AttachmentSupport = (doc.getObject("XY_Plane013"), [""])
sketch15.MapMode = "FlatFace"
sketch15.AttachmentOffset = App.Placement(Vector(0, 0, 0.2), App.Rotation())
add_polygon(sketch15, [(0.81, -1.25), (0.81, -1.65), (1.14, -1.65), (1.14, -1.25)])  # lines 0-3
sketch15.addConstraint([
    Sketcher.Constraint("Vertical", 0),
    Sketcher.Constraint("Horizontal", 1),
    Sketcher.Constraint("Vertical", 2),
    Sketcher.Constraint("Horizontal", 3),
    Sketcher.Constraint("DistanceY", 0, 2, 0, 1, 0.4),
    Sketcher.Constraint("DistanceX", 1, 1, 1, 2, 0.32),
    Sketcher.Constraint("DistanceY", 0, 2, -1, 1, 1.65),
    Sketcher.Constraint("DistanceX", -1, 1, 0, 2, 0.815),
])
sketch15.setExpression("Constraints[8]", "Params.sketch15_height")
sketch15.setExpression("Constraints[9]", "Params.sketch15_width")
pad14 = body14.newObject("PartDesign::Pad", "Pad013")
pad14.Profile = sketch15
pad14.setExpression("Length", "Params.pad14_length")

doc.recompute()
